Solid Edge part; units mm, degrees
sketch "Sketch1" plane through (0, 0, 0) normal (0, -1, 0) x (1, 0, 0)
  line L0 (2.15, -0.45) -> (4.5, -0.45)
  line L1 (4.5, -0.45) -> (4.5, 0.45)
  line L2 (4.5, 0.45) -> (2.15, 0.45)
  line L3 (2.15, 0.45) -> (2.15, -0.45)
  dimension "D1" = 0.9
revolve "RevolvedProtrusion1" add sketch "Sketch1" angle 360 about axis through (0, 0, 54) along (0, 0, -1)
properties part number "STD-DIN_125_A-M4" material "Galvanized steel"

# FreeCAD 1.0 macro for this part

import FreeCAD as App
import Part
import Sketcher
from FreeCAD import Vector


def add_polygon(sketch, points):
    """Adds a closed chain of lines whose ends are joined by coincident constraints."""
    first, n = sketch.GeometryCount, len(points)
    for a, b in zip(points, points[1:] + points[:1]):
        sketch.addGeometry(Part.LineSegment(App.Vector(*a, 0), App.Vector(*b, 0)), False)
    for i in range(n):
        sketch.addConstraint(Sketcher.Constraint("Coincident", first + i, 2, first + (i + 1) % n, 1))

doc = App.newDocument("Part")
body = doc.addObject("PartDesign::Body", "Body")

# Sketch on XZ plane
sketch1 = body.newObject("Sketcher::SketchObject", "Sketch")
sketch1.AttachmentSupport = (doc.getObject("XZ_Plane"), [""])
sketch1.MapMode = "FlatFace"
add_polygon(sketch1, [(2.15, 0.45), (2.15, -0.45), (4.5, -0.45), (4.5, 0.45)])  # lines 0-3
sketch1.addConstraint(Sketcher.Constraint("Vertical", 0))
sketch1.addConstraint(Sketcher.Constraint("Horizontal", 1))
sketch1.addConstraint(Sketcher.Constraint("Vertical", 2))
sketch1.addConstraint(Sketcher.Constraint("Horizontal", 3))
sketch1.addConstraint(Sketcher.Constraint("DistanceX", -1, 1, 1, 2, 4.5))
sketch1.addConstraint(Sketcher.Constraint("DistanceY", 0, 2, 0, 1, 0.9))
sketch1.addConstraint(Sketcher.Constraint("DistanceX", 1, 1, 1, 2, 2.35))
sketch1.addConstraint(Sketcher.Constraint("DistanceY", 0, 2, -1, 1, 0.45))
revolution = body.newObject("PartDesign::Revolution", "Revolution")
revolution.Profile = sketch1
revolution.ReferenceAxis = (sketch1, ["V_Axis"])
revolution.Angle = 360

doc.recompute()
